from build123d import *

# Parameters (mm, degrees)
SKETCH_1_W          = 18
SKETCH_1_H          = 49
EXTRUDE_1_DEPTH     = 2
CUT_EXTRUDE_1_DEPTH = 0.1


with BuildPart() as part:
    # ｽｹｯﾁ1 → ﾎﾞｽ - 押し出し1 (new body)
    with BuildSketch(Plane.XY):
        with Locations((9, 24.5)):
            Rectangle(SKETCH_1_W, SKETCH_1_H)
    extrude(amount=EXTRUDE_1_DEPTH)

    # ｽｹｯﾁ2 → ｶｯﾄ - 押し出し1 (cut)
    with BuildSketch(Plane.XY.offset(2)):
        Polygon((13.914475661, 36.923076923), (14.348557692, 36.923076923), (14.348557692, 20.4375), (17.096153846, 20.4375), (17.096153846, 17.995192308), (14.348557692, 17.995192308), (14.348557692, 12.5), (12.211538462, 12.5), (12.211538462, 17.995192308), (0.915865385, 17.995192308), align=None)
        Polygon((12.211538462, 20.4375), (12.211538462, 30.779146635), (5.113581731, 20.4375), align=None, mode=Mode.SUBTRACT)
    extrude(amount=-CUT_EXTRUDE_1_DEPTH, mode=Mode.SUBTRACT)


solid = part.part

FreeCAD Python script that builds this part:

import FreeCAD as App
import Part
import Sketcher
from FreeCAD import Vector
Q = App.Units.Quantity

doc = App.newDocument("Part")
body = doc.addObject("PartDesign::Body", "Body")

sketch1 = body.newObject("Sketcher::SketchObject", "Sketch")
sketch1.AttachmentSupport = (doc.getObject("XY_Plane"), [""])
sketch1.MapMode = "FlatFace"
sketch1.addGeometry([
    Part.LineSegment(Vector(0, 49, 0), Vector(0, 0, 0)),
    Part.LineSegment(Vector(0, 0, 0), Vector(18, 0, 0)),
    Part.LineSegment(Vector(18, 0, 0), Vector(18, 49, 0)),
    Part.LineSegment(Vector(18, 49, 0), Vector(0, 49, 0)),
], False)
sketch1.addConstraint([
    Sketcher.Constraint("Coincident", 0, 2, 1, 1),
    Sketcher.Constraint("Coincident", 1, 2, 2, 1),
    Sketcher.Constraint("Coincident", 2, 2, 3, 1),
    Sketcher.Constraint("Coincident", 3, 2, 0, 1),
    Sketcher.Constraint("Vertical", 0),
    Sketcher.Constraint("Horizontal", 1),
    Sketcher.Constraint("Vertical", 2),
    Sketcher.Constraint("Horizontal", 3),
    Sketcher.Constraint("Coincident", 0, 2, -1, 1),
    Sketcher.Constraint("DistanceX", 1, 1, 1, 2, Q("18 mm")),
    Sketcher.Constraint("DistanceY", 0, 2, 0, 1, Q("49 mm")),
])
pad1 = body.newObject("PartDesign::Pad", "Pad")
pad1.Profile = sketch1
pad1.Length = 2

sketch2 = body.newObject("Sketcher::SketchObject", "Sketch001")
sketch2.AttachmentSupport = (doc.getObject("XY_Plane"), [""])
sketch2.MapMode = "FlatFace"
sketch2.AttachmentOffset = App.Placement(Vector(0, 0, 2), App.Rotation())
sketch2.addGeometry([
    Part.LineSegment(Vector(14.348558, 36.923077, 0), Vector(13.914476, 36.923077, 0)),
    Part.LineSegment(Vector(13.914476, 36.923077, 0), Vector(0.915865, 17.995192, 0)),
    Part.LineSegment(Vector(0.915865, 17.995192, 0), Vector(12.211538, 17.995192, 0)),
    Part.LineSegment(Vector(12.211538, 17.995192, 0), Vector(12.211538, 12.5, 0)),
    Part.LineSegment(Vector(12.211538, 12.5, 0), Vector(14.348558, 12.5, 0)),
    Part.LineSegment(Vector(14.348558, 12.5, 0), Vector(14.348558, 17.995192, 0)),
    Part.LineSegment(Vector(14.348558, 17.995192, 0), Vector(17.096154, 17.995192, 0)),
    Part.LineSegment(Vector(17.096154, 17.995192, 0), Vector(17.096154, 20.4375, 0)),
    Part.LineSegment(Vector(17.096154, 20.4375, 0), Vector(14.348558, 20.4375, 0)),
    Part.LineSegment(Vector(14.348558, 20.4375, 0), Vector(14.348558, 36.923077, 0)),
    Part.LineSegment(Vector(12.211538, 20.4375, 0), Vector(5.113582, 20.4375, 0)),
    Part.LineSegment(Vector(5.113582, 20.4375, 0), Vector(12.211538, 30.779147, 0)),
    Part.LineSegment(Vector(12.211538, 30.779147, 0), Vector(12.211538, 20.4375, 0)),
], False)
sketch2.addConstraint([
    Sketcher.Constraint("Coincident", 0, 2, 1, 1),
    Sketcher.Constraint("Coincident", 1, 2, 2, 1),
    Sketcher.Constraint("Coincident", 2, 2, 3, 1),
    Sketcher.Constraint("Coincident", 3, 2, 4, 1),
    Sketcher.Constraint("Coincident", 4, 2, 5, 1),
    Sketcher.Constraint("Coincident", 5, 2, 6, 1),
    Sketcher.Constraint("Coincident", 6, 2, 7, 1),
    Sketcher.Constraint("Coincident", 7, 2, 8, 1),
    Sketcher.Constraint("Coincident", 8, 2, 9, 1),
    Sketcher.Constraint("Coincident", 9, 2, 0, 1),
    Sketcher.Constraint("Coincident", 10, 2, 11, 1),
    Sketcher.Constraint("Coincident", 11, 2, 12, 1),
    Sketcher.Constraint("Coincident", 12, 2, 10, 1),
    Sketcher.Constraint("Horizontal", 0),
    Sketcher.Constraint("Horizontal", 2),
    Sketcher.Constraint("Vertical", 3),
    Sketcher.Constraint("Horizontal", 4),
    Sketcher.Constraint("Vertical", 5),
    Sketcher.Constraint("Horizontal", 6),
    Sketcher.Constraint("Vertical", 7),
    Sketcher.Constraint("Horizontal", 8),
    Sketcher.Constraint("Vertical", 9),
    Sketcher.Constraint("Horizontal", 10),
    Sketcher.Constraint("Vertical", 12),
    Sketcher.Constraint("Horizontal", 2, 2, 5, 2),
    Sketcher.Constraint("Horizontal", 8, 2, 10, 2),
    Sketcher.Constraint("Vertical", 5, 2, 8, 2),
    Sketcher.Constraint("Vertical", 3, 2, 11, 2),
    Sketcher.Constraint("DistanceY", -1, 1, 3, 2, Q("12.5 mm")),
    Sketcher.Constraint("DistanceX", 4, 1, 4, 2, Q("2.137019 mm")),
    Sketcher.Constraint("DistanceY", -1, 1, 7, 2, Q("20.4375 mm")),
    Sketcher.Constraint("Distance", 1, Q("22.961461 mm")),
    Sketcher.Constraint("Distance", 11, Q("12.543151 mm")),
    Sketcher.Constraint("DistanceX", 0, 2, 0, 1, Q("0.434082 mm")),
    Sketcher.Constraint("DistanceX", 2, 1, 2, 2, Q("11.295673 mm")),
    Sketcher.Constraint("DistanceX", 6, 1, 6, 2, Q("2.747596 mm")),
    Sketcher.Constraint("DistanceX", 10, 2, 10, 1, Q("7.097957 mm")),
    Sketcher.Constraint("DistanceY", 3, 2, 3, 1, Q("5.495192 mm")),
    Sketcher.Constraint("DistanceX", -1, 1, 2, 2, Q("12.211538 mm")),
])
pocket1 = body.newObject("PartDesign::Pocket", "Pocket")
pocket1.Profile = sketch2
pocket1.Length = 0.1

doc.recompute()
